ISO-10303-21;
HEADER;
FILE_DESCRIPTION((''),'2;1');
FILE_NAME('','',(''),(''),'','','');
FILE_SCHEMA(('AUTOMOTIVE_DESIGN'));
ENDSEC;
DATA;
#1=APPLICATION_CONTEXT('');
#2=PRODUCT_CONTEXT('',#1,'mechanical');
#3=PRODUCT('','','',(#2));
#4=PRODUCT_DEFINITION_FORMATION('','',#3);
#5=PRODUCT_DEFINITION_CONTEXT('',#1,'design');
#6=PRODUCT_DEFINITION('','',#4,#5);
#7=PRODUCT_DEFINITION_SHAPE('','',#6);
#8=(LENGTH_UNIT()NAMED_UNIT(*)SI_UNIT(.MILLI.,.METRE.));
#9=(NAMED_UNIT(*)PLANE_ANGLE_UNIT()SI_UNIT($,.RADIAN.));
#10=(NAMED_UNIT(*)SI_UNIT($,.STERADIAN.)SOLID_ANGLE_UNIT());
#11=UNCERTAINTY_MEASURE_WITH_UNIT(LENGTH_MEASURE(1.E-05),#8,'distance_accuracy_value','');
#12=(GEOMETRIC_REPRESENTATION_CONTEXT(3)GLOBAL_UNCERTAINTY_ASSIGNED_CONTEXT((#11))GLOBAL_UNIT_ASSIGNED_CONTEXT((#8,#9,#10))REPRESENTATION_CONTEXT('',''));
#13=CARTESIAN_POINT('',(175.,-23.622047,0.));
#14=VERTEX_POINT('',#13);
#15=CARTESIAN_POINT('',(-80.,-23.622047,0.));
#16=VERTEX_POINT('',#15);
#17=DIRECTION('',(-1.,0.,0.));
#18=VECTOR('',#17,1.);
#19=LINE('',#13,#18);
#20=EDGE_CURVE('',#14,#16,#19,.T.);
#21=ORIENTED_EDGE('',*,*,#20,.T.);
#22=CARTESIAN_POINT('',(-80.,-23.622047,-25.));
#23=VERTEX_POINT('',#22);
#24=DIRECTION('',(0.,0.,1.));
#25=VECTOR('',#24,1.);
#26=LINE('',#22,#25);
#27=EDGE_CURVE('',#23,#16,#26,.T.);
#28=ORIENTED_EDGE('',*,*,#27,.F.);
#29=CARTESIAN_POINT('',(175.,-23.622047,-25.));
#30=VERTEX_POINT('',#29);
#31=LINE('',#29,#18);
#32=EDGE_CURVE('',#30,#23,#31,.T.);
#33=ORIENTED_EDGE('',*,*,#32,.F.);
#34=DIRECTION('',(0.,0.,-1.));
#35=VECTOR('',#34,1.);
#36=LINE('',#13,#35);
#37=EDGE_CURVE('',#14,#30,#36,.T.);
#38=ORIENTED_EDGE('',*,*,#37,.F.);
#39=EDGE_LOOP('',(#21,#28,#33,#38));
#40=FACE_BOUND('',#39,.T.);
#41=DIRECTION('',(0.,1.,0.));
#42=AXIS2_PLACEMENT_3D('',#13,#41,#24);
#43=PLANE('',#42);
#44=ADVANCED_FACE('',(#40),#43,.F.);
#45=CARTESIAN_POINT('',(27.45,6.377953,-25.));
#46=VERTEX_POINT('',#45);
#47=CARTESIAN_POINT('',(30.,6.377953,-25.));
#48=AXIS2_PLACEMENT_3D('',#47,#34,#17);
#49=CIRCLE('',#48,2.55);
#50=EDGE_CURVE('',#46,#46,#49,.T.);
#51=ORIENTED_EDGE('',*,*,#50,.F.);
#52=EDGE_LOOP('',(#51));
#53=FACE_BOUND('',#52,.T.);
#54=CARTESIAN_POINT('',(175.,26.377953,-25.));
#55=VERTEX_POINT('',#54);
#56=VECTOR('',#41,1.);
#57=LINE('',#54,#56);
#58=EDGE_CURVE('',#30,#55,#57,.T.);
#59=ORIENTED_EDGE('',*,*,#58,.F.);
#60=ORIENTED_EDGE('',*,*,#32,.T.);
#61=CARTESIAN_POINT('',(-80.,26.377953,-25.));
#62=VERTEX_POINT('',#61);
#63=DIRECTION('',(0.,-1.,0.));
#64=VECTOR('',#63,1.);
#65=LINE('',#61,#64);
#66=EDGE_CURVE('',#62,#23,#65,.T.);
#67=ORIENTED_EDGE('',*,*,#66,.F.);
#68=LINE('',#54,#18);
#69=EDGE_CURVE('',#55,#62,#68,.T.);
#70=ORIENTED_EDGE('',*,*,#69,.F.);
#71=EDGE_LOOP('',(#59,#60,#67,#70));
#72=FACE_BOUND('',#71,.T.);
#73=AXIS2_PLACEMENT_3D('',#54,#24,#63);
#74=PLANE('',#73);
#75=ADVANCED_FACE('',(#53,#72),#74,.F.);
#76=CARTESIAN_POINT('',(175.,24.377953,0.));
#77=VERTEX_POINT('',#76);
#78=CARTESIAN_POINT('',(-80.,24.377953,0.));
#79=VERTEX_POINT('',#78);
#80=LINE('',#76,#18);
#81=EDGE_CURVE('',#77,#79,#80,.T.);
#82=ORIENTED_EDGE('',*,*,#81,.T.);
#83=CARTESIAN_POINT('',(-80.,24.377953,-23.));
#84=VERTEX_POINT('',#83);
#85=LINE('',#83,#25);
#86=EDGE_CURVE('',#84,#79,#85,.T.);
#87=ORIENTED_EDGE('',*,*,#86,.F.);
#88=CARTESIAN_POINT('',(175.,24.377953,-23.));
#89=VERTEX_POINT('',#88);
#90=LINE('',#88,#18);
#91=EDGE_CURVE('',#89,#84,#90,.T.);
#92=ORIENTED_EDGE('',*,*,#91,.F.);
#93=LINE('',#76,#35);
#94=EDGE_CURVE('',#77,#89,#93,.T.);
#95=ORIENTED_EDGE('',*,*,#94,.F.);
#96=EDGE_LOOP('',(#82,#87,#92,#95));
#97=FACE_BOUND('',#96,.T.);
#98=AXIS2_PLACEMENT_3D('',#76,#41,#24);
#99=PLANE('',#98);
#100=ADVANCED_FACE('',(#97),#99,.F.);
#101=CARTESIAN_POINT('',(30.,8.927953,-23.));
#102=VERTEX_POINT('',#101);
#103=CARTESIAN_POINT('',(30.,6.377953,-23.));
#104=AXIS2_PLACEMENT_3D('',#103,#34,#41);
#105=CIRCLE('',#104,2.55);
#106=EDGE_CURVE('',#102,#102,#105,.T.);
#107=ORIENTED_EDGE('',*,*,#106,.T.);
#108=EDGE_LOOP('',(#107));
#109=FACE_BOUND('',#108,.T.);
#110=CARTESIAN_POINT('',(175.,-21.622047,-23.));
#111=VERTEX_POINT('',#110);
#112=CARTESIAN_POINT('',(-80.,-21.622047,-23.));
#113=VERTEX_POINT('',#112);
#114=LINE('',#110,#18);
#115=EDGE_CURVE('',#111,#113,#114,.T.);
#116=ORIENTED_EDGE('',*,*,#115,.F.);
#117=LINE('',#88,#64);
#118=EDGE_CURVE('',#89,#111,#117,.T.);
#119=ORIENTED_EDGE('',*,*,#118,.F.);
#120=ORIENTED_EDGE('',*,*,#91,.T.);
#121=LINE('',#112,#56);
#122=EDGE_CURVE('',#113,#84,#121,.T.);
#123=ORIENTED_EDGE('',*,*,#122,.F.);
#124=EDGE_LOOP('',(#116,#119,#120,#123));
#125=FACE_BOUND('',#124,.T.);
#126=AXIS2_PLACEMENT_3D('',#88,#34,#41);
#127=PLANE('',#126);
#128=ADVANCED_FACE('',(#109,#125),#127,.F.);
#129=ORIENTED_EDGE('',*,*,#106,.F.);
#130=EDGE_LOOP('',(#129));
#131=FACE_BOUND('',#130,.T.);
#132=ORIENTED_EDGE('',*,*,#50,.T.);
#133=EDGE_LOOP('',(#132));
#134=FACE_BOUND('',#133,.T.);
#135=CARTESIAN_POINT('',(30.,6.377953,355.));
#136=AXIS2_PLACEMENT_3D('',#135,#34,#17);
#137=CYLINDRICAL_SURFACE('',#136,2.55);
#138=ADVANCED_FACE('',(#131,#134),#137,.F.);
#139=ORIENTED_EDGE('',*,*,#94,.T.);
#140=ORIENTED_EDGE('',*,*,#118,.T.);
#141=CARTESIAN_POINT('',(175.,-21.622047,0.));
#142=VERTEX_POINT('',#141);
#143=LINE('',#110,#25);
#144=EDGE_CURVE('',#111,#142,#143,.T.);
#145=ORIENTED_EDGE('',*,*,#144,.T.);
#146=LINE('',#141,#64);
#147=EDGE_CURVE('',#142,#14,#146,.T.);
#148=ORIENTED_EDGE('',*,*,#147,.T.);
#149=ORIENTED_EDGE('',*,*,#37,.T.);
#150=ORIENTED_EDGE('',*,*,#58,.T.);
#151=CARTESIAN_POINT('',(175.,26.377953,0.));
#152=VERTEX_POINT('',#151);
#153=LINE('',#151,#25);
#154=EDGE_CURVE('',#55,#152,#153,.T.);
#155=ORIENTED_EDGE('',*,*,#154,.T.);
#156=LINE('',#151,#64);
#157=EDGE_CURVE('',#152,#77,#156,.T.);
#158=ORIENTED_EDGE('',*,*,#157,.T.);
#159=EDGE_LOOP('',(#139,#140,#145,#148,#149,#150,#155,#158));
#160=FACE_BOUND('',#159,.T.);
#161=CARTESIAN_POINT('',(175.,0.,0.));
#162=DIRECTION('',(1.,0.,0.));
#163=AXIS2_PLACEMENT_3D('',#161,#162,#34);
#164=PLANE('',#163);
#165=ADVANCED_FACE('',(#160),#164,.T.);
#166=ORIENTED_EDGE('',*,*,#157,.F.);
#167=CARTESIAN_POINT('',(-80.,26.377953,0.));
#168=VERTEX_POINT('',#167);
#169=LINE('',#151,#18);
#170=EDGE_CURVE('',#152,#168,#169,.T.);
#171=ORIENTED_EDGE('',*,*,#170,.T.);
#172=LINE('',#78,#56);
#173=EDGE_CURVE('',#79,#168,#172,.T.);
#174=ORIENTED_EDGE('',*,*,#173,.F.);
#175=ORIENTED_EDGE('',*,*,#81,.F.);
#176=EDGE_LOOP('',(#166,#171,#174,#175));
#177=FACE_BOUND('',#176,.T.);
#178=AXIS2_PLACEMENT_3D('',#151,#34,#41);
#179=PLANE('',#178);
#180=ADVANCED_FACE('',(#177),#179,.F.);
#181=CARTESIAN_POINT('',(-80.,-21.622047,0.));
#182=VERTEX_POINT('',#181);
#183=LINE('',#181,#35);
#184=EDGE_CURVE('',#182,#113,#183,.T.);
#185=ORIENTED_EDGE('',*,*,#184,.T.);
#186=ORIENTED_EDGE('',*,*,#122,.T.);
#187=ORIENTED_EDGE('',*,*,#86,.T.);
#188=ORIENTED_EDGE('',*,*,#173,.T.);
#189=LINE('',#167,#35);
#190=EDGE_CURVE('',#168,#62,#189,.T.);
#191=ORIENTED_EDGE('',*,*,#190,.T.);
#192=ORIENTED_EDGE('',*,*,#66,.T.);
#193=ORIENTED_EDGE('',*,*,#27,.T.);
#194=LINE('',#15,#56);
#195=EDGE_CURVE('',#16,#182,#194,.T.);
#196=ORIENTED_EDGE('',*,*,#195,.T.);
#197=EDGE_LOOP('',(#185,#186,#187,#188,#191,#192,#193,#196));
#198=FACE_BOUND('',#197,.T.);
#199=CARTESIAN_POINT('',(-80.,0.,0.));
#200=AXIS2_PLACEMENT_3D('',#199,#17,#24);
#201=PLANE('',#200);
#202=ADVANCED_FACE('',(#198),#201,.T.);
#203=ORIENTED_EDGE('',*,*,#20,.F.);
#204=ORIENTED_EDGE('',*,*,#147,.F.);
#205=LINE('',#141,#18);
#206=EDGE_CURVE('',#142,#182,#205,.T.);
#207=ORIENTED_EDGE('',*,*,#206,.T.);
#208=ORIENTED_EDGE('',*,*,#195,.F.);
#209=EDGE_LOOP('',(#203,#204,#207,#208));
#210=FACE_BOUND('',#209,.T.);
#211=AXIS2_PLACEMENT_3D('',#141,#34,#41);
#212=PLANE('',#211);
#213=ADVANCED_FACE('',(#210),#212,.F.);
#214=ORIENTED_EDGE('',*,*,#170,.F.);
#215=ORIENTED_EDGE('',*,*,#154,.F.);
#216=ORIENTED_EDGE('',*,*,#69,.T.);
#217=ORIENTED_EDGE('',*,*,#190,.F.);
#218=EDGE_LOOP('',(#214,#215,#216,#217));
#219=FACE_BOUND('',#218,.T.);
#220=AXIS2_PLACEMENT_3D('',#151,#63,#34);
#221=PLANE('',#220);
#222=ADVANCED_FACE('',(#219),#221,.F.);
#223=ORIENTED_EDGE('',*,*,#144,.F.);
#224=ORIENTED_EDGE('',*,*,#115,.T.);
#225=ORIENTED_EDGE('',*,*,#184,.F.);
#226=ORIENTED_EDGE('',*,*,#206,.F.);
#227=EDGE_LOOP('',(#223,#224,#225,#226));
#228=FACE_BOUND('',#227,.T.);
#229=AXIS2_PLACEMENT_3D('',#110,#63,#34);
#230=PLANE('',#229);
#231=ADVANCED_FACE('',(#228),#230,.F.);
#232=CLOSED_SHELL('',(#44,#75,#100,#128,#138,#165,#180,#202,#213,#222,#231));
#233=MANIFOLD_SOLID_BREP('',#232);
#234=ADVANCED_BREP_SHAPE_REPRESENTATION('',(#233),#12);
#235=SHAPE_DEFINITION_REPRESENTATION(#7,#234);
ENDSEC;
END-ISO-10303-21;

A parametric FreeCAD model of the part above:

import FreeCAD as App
import Part
import Sketcher


def add_polygon(sketch, points):
    """Adds a closed chain of lines whose ends are joined by coincident constraints."""
    first, n = sketch.GeometryCount, len(points)
    for a, b in zip(points, points[1:] + points[:1]):
        sketch.addGeometry(Part.LineSegment(App.Vector(*a, 0), App.Vector(*b, 0)), False)
    for i in range(n):
        sketch.addConstraint(Sketcher.Constraint("Coincident", first + i, 2, first + (i + 1) % n, 1))

doc = App.newDocument("Part")
body = doc.addObject("PartDesign::Body", "Body")

sketch1 = doc.addObject("Sketcher::SketchObject", "Sketch")
body.addObject(sketch1)
sketch1.AttachmentSupport = (doc.YZ_Plane, [""])
sketch1.MapMode = "FlatFace"
add_polygon(sketch1, [(24.4, 0), (24.4, -23), (-21.6, -23), (-21.6, 0), (-23.6, 0), (-23.6, -25), (26.4, -25), (26.4, 0)])
sketch1.addConstraint([
    Sketcher.Constraint("Vertical", 0),
    Sketcher.Constraint("Horizontal", 1),
    Sketcher.Constraint("Vertical", 2),
    Sketcher.Constraint("Horizontal", 3),
    Sketcher.Constraint("Vertical", 4),
    Sketcher.Constraint("Horizontal", 5),
    Sketcher.Constraint("Vertical", 6),
    Sketcher.Constraint("Horizontal", 7),
    Sketcher.Constraint("PointOnObject", 2, 2, -1),
    Sketcher.Constraint("PointOnObject", 6, 2, -1),
    Sketcher.Constraint("Equal", 3, 7),
    Sketcher.Constraint("DistanceX", 1, 2, 1, 1, 46.0),
    Sketcher.Constraint("DistanceX", 3, 2, 3, 1, 2.0),
    Sketcher.Constraint("DistanceY", 0, 2, 0, 1, 23.0),
    Sketcher.Constraint("DistanceY", 4, 2, 4, 1, 25.0),
    Sketcher.Constraint("DistanceX", -1, 1, 0, 2, 24.377953),
])
pad1 = doc.addObject("PartDesign::Pad", "Pad")
body.addObject(pad1)
pad1.Profile = sketch1
pad1.Length = 175

sketch2 = doc.addObject("Sketcher::SketchObject", "Sketch001")
body.addObject(sketch2)
sketch2.AttachmentSupport = (doc.XY_Plane, [""])
sketch2.MapMode = "FlatFace"
sketch2.AttachmentOffset = App.Placement(App.Vector(0, 0, -25), App.Rotation())
sketch2.addGeometry(Part.Circle(App.Vector(30, 6.4, 0), App.Vector(0, 0, 1), 2.5), False)
sketch2.addConstraint([
    Sketcher.Constraint("Diameter", 0, 5.1),
    Sketcher.Constraint("DistanceX", -1, 1, 0, 3, 30.0),
    Sketcher.Constraint("DistanceY", -1, 1, 0, 3, 6.377953),
])
pocket1 = doc.addObject("PartDesign::Pocket", "Pocket")
body.addObject(pocket1)
pocket1.Profile = sketch2
pocket1.Length = 380
pocket1.Reversed = True

sketch3 = doc.addObject("Sketcher::SketchObject", "Sketch002")
body.addObject(sketch3)
sketch3.AttachmentSupport = (doc.YZ_Plane, [""])
sketch3.MapMode = "FlatFace"
add_polygon(sketch3, [(26.4, 0), (26.4, -25), (-23.6, -25), (-23.6, 0), (-21.6, 0), (-21.6, -23), (24.4, -23), (24.4, 0)])
sketch3.addConstraint([
    Sketcher.Constraint("Vertical", 0),
    Sketcher.Constraint("Horizontal", 1),
    Sketcher.Constraint("Vertical", 2),
    Sketcher.Constraint("Horizontal", 3),
    Sketcher.Constraint("Vertical", 4),
    Sketcher.Constraint("Horizontal", 5),
    Sketcher.Constraint("Vertical", 6),
    Sketcher.Constraint("Horizontal", 7),
    Sketcher.Constraint("PointOnObject", 2, 2, -1),
    Sketcher.Constraint("PointOnObject", 6, 2, -1),
    Sketcher.Constraint("Equal", 3, 7),
    Sketcher.Constraint("DistanceX", 1, 2, 1, 1, 50.0),
    Sketcher.Constraint("DistanceX", 3, 1, 3, 2, 2.0),
    Sketcher.Constraint("DistanceY", 0, 2, 0, 1, 25.0),
    Sketcher.Constraint("DistanceY", 4, 2, 4, 1, 23.0),
    Sketcher.Constraint("DistanceX", -1, 1, 0, 2, 26.377953),
])
pad2 = doc.addObject("PartDesign::Pad", "Pad001")
body.addObject(pad2)
pad2.Profile = sketch3
pad2.Length = 80
pad2.Reversed = True

doc.recompute()
